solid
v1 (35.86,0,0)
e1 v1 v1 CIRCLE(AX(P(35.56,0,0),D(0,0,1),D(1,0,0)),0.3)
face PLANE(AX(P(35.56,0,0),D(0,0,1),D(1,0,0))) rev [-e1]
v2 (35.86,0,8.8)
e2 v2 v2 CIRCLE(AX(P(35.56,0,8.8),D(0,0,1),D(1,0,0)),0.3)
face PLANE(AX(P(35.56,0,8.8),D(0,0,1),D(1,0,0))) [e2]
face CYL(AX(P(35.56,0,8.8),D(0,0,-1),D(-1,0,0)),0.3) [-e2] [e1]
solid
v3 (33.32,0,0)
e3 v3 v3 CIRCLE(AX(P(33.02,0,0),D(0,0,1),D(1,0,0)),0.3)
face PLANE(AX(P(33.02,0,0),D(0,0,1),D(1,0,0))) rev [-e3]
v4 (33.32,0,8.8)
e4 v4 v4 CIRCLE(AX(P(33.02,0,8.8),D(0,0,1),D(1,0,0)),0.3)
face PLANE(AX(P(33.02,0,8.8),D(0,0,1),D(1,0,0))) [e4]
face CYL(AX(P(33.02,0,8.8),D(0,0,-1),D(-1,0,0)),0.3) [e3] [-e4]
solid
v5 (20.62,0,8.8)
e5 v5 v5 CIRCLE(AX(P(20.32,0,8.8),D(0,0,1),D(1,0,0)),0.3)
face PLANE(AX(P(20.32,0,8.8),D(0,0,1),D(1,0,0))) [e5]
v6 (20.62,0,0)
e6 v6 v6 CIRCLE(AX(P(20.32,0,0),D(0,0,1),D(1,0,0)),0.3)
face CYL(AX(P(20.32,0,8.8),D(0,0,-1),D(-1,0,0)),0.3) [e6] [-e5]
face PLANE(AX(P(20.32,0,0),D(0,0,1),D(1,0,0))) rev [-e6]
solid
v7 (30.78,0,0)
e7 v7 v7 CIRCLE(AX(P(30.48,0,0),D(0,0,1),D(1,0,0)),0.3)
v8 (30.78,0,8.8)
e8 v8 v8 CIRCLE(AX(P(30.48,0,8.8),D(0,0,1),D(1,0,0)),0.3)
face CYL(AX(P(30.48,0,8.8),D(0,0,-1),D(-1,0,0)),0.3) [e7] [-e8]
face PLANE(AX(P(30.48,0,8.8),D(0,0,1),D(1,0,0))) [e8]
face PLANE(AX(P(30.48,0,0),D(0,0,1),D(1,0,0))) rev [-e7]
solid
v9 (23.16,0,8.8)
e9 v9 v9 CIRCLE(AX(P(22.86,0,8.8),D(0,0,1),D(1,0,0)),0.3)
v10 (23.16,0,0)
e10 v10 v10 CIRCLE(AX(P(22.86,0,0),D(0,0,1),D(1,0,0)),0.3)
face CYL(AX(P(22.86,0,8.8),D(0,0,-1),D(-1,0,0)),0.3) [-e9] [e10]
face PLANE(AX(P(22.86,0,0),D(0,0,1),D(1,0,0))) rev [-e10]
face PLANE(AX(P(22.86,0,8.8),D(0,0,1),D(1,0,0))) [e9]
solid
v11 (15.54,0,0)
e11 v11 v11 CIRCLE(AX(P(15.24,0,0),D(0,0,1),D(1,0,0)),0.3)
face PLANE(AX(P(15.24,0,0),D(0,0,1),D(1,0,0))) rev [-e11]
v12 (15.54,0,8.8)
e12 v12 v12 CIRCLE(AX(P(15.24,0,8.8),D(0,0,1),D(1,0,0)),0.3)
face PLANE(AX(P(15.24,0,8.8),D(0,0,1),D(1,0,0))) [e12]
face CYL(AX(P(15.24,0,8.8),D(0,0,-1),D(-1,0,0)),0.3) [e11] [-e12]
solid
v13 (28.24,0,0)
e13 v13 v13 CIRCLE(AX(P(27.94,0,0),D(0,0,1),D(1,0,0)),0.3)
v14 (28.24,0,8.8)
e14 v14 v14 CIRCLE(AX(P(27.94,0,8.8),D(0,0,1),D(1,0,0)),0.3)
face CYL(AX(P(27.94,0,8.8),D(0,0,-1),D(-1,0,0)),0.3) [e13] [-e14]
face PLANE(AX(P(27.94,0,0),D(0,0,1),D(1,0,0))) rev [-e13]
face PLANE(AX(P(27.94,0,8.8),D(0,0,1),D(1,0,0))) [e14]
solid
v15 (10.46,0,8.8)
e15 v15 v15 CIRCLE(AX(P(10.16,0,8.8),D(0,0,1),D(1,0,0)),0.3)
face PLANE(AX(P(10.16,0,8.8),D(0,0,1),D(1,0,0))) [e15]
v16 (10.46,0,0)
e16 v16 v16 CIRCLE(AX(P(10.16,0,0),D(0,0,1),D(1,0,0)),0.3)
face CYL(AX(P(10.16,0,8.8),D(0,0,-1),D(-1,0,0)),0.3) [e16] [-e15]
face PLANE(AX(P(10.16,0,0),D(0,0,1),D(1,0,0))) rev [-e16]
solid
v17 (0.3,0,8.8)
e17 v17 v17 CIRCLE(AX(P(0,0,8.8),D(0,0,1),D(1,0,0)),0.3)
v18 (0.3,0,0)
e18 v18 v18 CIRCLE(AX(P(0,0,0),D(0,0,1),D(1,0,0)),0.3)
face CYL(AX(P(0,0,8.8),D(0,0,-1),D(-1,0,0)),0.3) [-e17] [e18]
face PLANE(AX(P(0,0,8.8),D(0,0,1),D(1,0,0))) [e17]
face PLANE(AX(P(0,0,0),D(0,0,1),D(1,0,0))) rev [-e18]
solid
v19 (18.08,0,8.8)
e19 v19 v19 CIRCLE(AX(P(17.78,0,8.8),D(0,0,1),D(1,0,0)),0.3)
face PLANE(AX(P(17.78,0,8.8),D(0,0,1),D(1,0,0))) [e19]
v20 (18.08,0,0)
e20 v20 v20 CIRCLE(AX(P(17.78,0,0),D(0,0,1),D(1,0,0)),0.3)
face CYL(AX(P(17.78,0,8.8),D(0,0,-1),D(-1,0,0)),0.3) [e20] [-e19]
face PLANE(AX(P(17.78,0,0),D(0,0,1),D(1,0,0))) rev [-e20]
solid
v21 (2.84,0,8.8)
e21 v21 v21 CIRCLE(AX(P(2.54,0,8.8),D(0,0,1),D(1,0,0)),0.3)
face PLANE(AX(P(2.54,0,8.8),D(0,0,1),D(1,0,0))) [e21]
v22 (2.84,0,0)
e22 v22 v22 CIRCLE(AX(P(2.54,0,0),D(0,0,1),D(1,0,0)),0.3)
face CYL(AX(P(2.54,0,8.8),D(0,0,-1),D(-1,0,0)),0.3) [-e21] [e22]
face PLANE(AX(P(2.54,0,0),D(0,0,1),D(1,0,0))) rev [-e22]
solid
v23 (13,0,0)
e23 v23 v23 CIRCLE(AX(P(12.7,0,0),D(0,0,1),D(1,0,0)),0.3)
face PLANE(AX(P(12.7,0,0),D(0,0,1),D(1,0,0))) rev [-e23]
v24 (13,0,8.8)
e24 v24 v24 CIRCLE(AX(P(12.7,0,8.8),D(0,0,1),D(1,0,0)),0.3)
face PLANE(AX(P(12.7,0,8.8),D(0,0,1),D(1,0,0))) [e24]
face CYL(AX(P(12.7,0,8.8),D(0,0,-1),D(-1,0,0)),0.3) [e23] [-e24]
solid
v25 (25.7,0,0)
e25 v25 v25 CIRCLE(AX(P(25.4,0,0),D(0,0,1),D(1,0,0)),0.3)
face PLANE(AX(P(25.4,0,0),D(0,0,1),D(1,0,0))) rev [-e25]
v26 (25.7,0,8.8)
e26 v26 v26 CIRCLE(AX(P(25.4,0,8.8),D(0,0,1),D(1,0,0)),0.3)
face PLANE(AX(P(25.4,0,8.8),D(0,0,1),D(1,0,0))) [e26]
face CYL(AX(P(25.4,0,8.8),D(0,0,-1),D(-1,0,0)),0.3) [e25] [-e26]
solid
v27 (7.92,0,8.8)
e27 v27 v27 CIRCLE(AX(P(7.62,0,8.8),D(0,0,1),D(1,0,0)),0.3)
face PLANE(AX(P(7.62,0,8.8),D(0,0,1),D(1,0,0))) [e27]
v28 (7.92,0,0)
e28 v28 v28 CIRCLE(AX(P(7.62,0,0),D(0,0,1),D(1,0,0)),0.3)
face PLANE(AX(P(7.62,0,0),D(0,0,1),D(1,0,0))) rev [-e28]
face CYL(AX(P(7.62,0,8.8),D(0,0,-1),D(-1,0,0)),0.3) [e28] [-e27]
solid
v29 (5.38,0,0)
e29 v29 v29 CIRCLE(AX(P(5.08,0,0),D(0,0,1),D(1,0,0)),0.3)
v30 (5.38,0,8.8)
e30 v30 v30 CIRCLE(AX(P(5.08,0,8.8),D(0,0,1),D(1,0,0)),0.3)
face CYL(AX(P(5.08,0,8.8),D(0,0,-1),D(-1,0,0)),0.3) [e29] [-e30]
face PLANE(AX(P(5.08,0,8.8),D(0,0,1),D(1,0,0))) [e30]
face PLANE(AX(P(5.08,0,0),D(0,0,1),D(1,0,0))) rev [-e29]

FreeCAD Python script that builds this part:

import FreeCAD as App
import Part
import Sketcher

doc = App.newDocument("Part")
params = doc.addObject("Spreadsheet::Sheet", "Params")
for row, (alias, value) in enumerate([
    ("sketch1_diameter", "0.6 mm"),
    ("pad1_length", "8.8 mm"),
    ("sketch2_diameter", "0.6 mm"),
    ("pad2_length", "8.8 mm"),
    ("sketch3_diameter", "0.6 mm"),
    ("pad3_length", "8.8 mm"),
    ("sketch4_diameter", "0.6 mm"),
    ("pad4_length", "8.8 mm"),
    ("sketch5_diameter", "0.6 mm"),
    ("pad5_length", "8.8 mm"),
    ("sketch6_diameter", "0.6 mm"),
    ("pad6_length", "8.8 mm"),
    ("sketch7_diameter", "0.6 mm"),
    ("pad7_length", "8.8 mm"),
    ("sketch8_diameter", "0.6 mm"),
    ("pad8_length", "8.8 mm"),
    ("sketch9_diameter", "0.6 mm"),
    ("pad9_length", "8.8 mm"),
    ("sketch10_diameter", "0.6 mm"),
    ("pad10_length", "8.8 mm"),
    ("sketch11_diameter", "0.6 mm"),
    ("pad11_length", "8.8 mm"),
    ("sketch12_diameter", "0.6 mm"),
    ("pad12_length", "8.8 mm"),
    ("sketch13_diameter", "0.6 mm"),
    ("pad13_length", "8.8 mm"),
    ("sketch14_diameter", "0.6 mm"),
    ("pad14_length", "8.8 mm"),
    ("sketch15_diameter", "0.6 mm"),
    ("pad15_length", "8.8 mm"),
], start=1):
    params.set(f"A{row}", alias)
    params.set(f"B{row}", "=" + value)
    params.setAlias(f"B{row}", alias)

body = doc.addObject("PartDesign::Body", "Body")

sketch1 = body.newObject("Sketcher::SketchObject", "Sketch")
sketch1.AttachmentSupport = (doc.getObject("XY_Plane"), [""])
sketch1.MapMode = "FlatFace"
sketch1.addGeometry(Part.Circle(App.Vector(0, 0, 0), App.Vector(0, 0, 1), 0.3), False)
sketch1.addConstraint([
    Sketcher.Constraint("Coincident", 0, 3, -1, 1),
    Sketcher.Constraint("Diameter", 0, 0.6),
])
sketch1.setExpression("Constraints[1]", "Params.sketch1_diameter")
pad1 = body.newObject("PartDesign::Pad", "Pad")
pad1.Profile = sketch1
pad1.setExpression("Length", "Params.pad1_length")
body2 = doc.addObject("PartDesign::Body", "Body001")

sketch2 = body2.newObject("Sketcher::SketchObject", "Sketch001")
sketch2.AttachmentSupport = (doc.getObject("XY_Plane001"), [""])
sketch2.MapMode = "FlatFace"
sketch2.addGeometry(Part.Circle(App.Vector(2.54, 0, 0), App.Vector(0, 0, 1), 0.3), False)
sketch2.addConstraint([
    Sketcher.Constraint("PointOnObject", 0, 3, -1),
    Sketcher.Constraint("Diameter", 0, 0.6),
    Sketcher.Constraint("DistanceX", -1, 1, 0, 3, 2.54),
])
sketch2.setExpression("Constraints[1]", "Params.sketch2_diameter")
pad2 = body2.newObject("PartDesign::Pad", "Pad001")
pad2.Profile = sketch2
pad2.setExpression("Length", "Params.pad2_length")
body3 = doc.addObject("PartDesign::Body", "Body002")

sketch3 = body3.newObject("Sketcher::SketchObject", "Sketch002")
sketch3.AttachmentSupport = (doc.getObject("XY_Plane002"), [""])
sketch3.MapMode = "FlatFace"
sketch3.addGeometry(Part.Circle(App.Vector(5.08, 0, 0), App.Vector(0, 0, 1), 0.3), False)
sketch3.addConstraint([
    Sketcher.Constraint("PointOnObject", 0, 3, -1),
    Sketcher.Constraint("Diameter", 0, 0.6),
    Sketcher.Constraint("DistanceX", -1, 1, 0, 3, 5.08),
])
sketch3.setExpression("Constraints[1]", "Params.sketch3_diameter")
pad3 = body3.newObject("PartDesign::Pad", "Pad002")
pad3.Profile = sketch3
pad3.setExpression("Length", "Params.pad3_length")
body4 = doc.addObject("PartDesign::Body", "Body003")

sketch4 = body4.newObject("Sketcher::SketchObject", "Sketch003")
sketch4.AttachmentSupport = (doc.getObject("XY_Plane003"), [""])
sketch4.MapMode = "FlatFace"
sketch4.addGeometry(Part.Circle(App.Vector(7.62, 0, 0), App.Vector(0, 0, 1), 0.3), False)
sketch4.addConstraint([
    Sketcher.Constraint("PointOnObject", 0, 3, -1),
    Sketcher.Constraint("Diameter", 0, 0.6),
    Sketcher.Constraint("DistanceX", -1, 1, 0, 3, 7.62),
])
sketch4.setExpression("Constraints[1]", "Params.sketch4_diameter")
pad4 = body4.newObject("PartDesign::Pad", "Pad003")
pad4.Profile = sketch4
pad4.setExpression("Length", "Params.pad4_length")
body5 = doc.addObject("PartDesign::Body", "Body004")

sketch5 = body5.newObject("Sketcher::SketchObject", "Sketch004")
sketch5.AttachmentSupport = (doc.getObject("XY_Plane004"), [""])
sketch5.MapMode = "FlatFace"
sketch5.addGeometry(Part.Circle(App.Vector(10.16, 0, 0), App.Vector(0, 0, 1), 0.3), False)
sketch5.addConstraint([
    Sketcher.Constraint("PointOnObject", 0, 3, -1),
    Sketcher.Constraint("Diameter", 0, 0.6),
    Sketcher.Constraint("DistanceX", -1, 1, 0, 3, 10.16),
])
sketch5.setExpression("Constraints[1]", "Params.sketch5_diameter")
pad5 = body5.newObject("PartDesign::Pad", "Pad004")
pad5.Profile = sketch5
pad5.setExpression("Length", "Params.pad5_length")
body6 = doc.addObject("PartDesign::Body", "Body005")

sketch6 = body6.newObject("Sketcher::SketchObject", "Sketch005")
sketch6.AttachmentSupport = (doc.getObject("XY_Plane005"), [""])
sketch6.MapMode = "FlatFace"
sketch6.addGeometry(Part.Circle(App.Vector(12.7, 0, 0), App.Vector(0, 0, 1), 0.3), False)
sketch6.addConstraint([
    Sketcher.Constraint("PointOnObject", 0, 3, -1),
    Sketcher.Constraint("Diameter", 0, 0.6),
    Sketcher.Constraint("DistanceX", -1, 1, 0, 3, 12.7),
])
sketch6.setExpression("Constraints[1]", "Params.sketch6_diameter")
pad6 = body6.newObject("PartDesign::Pad", "Pad005")
pad6.Profile = sketch6
pad6.setExpression("Length", "Params.pad6_length")
body7 = doc.addObject("PartDesign::Body", "Body006")

sketch7 = body7.newObject("Sketcher::SketchObject", "Sketch006")
sketch7.AttachmentSupport = (doc.getObject("XY_Plane006"), [""])
sketch7.MapMode = "FlatFace"
sketch7.addGeometry(Part.Circle(App.Vector(15.24, 0, 0), App.Vector(0, 0, 1), 0.3), False)
sketch7.addConstraint([
    Sketcher.Constraint("PointOnObject", 0, 3, -1),
    Sketcher.Constraint("Diameter", 0, 0.6),
    Sketcher.Constraint("DistanceX", -1, 1, 0, 3, 15.24),
])
sketch7.setExpression("Constraints[1]", "Params.sketch7_diameter")
pad7 = body7.newObject("PartDesign::Pad", "Pad006")
pad7.Profile = sketch7
pad7.setExpression("Length", "Params.pad7_length")
body8 = doc.addObject("PartDesign::Body", "Body007")

sketch8 = body8.newObject("Sketcher::SketchObject", "Sketch007")
sketch8.AttachmentSupport = (doc.getObject("XY_Plane007"), [""])
sketch8.MapMode = "FlatFace"
sketch8.addGeometry(Part.Circle(App.Vector(17.78, 0, 0), App.Vector(0, 0, 1), 0.3), False)
sketch8.addConstraint([
    Sketcher.Constraint("PointOnObject", 0, 3, -1),
    Sketcher.Constraint("Diameter", 0, 0.6),
    Sketcher.Constraint("DistanceX", -1, 1, 0, 3, 17.78),
])
sketch8.setExpression("Constraints[1]", "Params.sketch8_diameter")
pad8 = body8.newObject("PartDesign::Pad", "Pad007")
pad8.Profile = sketch8
pad8.setExpression("Length", "Params.pad8_length")
body9 = doc.addObject("PartDesign::Body", "Body008")

sketch9 = body9.newObject("Sketcher::SketchObject", "Sketch008")
sketch9.AttachmentSupport = (doc.getObject("XY_Plane008"), [""])
sketch9.MapMode = "FlatFace"
sketch9.addGeometry(Part.Circle(App.Vector(20.32, 0, 0), App.Vector(0, 0, 1), 0.3), False)
sketch9.addConstraint([
    Sketcher.Constraint("PointOnObject", 0, 3, -1),
    Sketcher.Constraint("Diameter", 0, 0.6),
    Sketcher.Constraint("DistanceX", -1, 1, 0, 3, 20.32),
])
sketch9.setExpression("Constraints[1]", "Params.sketch9_diameter")
pad9 = body9.newObject("PartDesign::Pad", "Pad008")
pad9.Profile = sketch9
pad9.setExpression("Length", "Params.pad9_length")
body10 = doc.addObject("PartDesign::Body", "Body009")

sketch10 = body10.newObject("Sketcher::SketchObject", "Sketch009")
sketch10.AttachmentSupport = (doc.getObject("XY_Plane009"), [""])
sketch10.MapMode = "FlatFace"
sketch10.addGeometry(Part.Circle(App.Vector(22.86, 0, 0), App.Vector(0, 0, 1), 0.3), False)
sketch10.addConstraint([
    Sketcher.Constraint("PointOnObject", 0, 3, -1),
    Sketcher.Constraint("Diameter", 0, 0.6),
    Sketcher.Constraint("DistanceX", -1, 1, 0, 3, 22.86),
])
sketch10.setExpression("Constraints[1]", "Params.sketch10_diameter")
pad10 = body10.newObject("PartDesign::Pad", "Pad009")
pad10.Profile = sketch10
pad10.setExpression("Length", "Params.pad10_length")
body11 = doc.addObject("PartDesign::Body", "Body010")

sketch11 = body11.newObject("Sketcher::SketchObject", "Sketch010")
sketch11.AttachmentSupport = (doc.getObject("XY_Plane010"), [""])
sketch11.MapMode = "FlatFace"
sketch11.addGeometry(Part.Circle(App.Vector(25.4, 0, 0), App.Vector(0, 0, 1), 0.3), False)
sketch11.addConstraint([
    Sketcher.Constraint("PointOnObject", 0, 3, -1),
    Sketcher.Constraint("Diameter", 0, 0.6),
    Sketcher.Constraint("DistanceX", -1, 1, 0, 3, 25.4),
])
sketch11.setExpression("Constraints[1]", "Params.sketch11_diameter")
pad11 = body11.newObject("PartDesign::Pad", "Pad010")
pad11.Profile = sketch11
pad11.setExpression("Length", "Params.pad11_length")
body12 = doc.addObject("PartDesign::Body", "Body011")

sketch12 = body12.newObject("Sketcher::SketchObject", "Sketch011")
sketch12.AttachmentSupport = (doc.getObject("XY_Plane011"), [""])
sketch12.MapMode = "FlatFace"
sketch12.addGeometry(Part.Circle(App.Vector(27.94, 0, 0), App.Vector(0, 0, 1), 0.3), False)
sketch12.addConstraint([
    Sketcher.Constraint("PointOnObject", 0, 3, -1),
    Sketcher.Constraint("Diameter", 0, 0.6),
    Sketcher.Constraint("DistanceX", -1, 1, 0, 3, 27.94),
])
sketch12.setExpression("Constraints[1]", "Params.sketch12_diameter")
pad12 = body12.newObject("PartDesign::Pad", "Pad011")
pad12.Profile = sketch12
pad12.setExpression("Length", "Params.pad12_length")
body13 = doc.addObject("PartDesign::Body", "Body012")

sketch13 = body13.newObject("Sketcher::SketchObject", "Sketch012")
sketch13.AttachmentSupport = (doc.getObject("XY_Plane012"), [""])
sketch13.MapMode = "FlatFace"
sketch13.addGeometry(Part.Circle(App.Vector(30.48, 0, 0), App.Vector(0, 0, 1), 0.3), False)
sketch13.addConstraint([
    Sketcher.Constraint("PointOnObject", 0, 3, -1),
    Sketcher.Constraint("Diameter", 0, 0.6),
    Sketcher.Constraint("DistanceX", -1, 1, 0, 3, 30.48),
])
sketch13.setExpression("Constraints[1]", "Params.sketch13_diameter")
pad13 = body13.newObject("PartDesign::Pad", "Pad012")
pad13.Profile = sketch13
pad13.setExpression("Length", "Params.pad13_length")
body14 = doc.addObject("PartDesign::Body", "Body013")

sketch14 = body14.newObject("Sketcher::SketchObject", "Sketch013")
sketch14.AttachmentSupport = (doc.getObject("XY_Plane013"), [""])
sketch14.MapMode = "FlatFace"
sketch14.addGeometry(Part.Circle(App.Vector(33.02, 0, 0), App.Vector(0, 0, 1), 0.3), False)
sketch14.addConstraint([
    Sketcher.Constraint("PointOnObject", 0, 3, -1),
    Sketcher.Constraint("Diameter", 0, 0.6),
    Sketcher.Constraint("DistanceX", -1, 1, 0, 3, 33.02),
])
sketch14.setExpression("Constraints[1]", "Params.sketch14_diameter")
pad14 = body14.newObject("PartDesign::Pad", "Pad013")
pad14.Profile = sketch14
pad14.setExpression("Length", "Params.pad14_length")
body15 = doc.addObject("PartDesign::Body", "Body014")

sketch15 = body15.newObject("Sketcher::SketchObject", "Sketch014")
sketch15.AttachmentSupport = (doc.getObject("XY_Plane014"), [""])
sketch15.MapMode = "FlatFace"
sketch15.addGeometry(Part.Circle(App.Vector(35.56, 0, 0), App.Vector(0, 0, 1), 0.3), False)
sketch15.addConstraint([
    Sketcher.Constraint("PointOnObject", 0, 3, -1),
    Sketcher.Constraint("Diameter", 0, 0.6),
    Sketcher.Constraint("DistanceX", -1, 1, 0, 3, 35.56),
])
sketch15.setExpression("Constraints[1]", "Params.sketch15_diameter")
pad15 = body15.newObject("PartDesign::Pad", "Pad014")
pad15.Profile = sketch15
pad15.setExpression("Length", "Params.pad15_length")

doc.recompute()
